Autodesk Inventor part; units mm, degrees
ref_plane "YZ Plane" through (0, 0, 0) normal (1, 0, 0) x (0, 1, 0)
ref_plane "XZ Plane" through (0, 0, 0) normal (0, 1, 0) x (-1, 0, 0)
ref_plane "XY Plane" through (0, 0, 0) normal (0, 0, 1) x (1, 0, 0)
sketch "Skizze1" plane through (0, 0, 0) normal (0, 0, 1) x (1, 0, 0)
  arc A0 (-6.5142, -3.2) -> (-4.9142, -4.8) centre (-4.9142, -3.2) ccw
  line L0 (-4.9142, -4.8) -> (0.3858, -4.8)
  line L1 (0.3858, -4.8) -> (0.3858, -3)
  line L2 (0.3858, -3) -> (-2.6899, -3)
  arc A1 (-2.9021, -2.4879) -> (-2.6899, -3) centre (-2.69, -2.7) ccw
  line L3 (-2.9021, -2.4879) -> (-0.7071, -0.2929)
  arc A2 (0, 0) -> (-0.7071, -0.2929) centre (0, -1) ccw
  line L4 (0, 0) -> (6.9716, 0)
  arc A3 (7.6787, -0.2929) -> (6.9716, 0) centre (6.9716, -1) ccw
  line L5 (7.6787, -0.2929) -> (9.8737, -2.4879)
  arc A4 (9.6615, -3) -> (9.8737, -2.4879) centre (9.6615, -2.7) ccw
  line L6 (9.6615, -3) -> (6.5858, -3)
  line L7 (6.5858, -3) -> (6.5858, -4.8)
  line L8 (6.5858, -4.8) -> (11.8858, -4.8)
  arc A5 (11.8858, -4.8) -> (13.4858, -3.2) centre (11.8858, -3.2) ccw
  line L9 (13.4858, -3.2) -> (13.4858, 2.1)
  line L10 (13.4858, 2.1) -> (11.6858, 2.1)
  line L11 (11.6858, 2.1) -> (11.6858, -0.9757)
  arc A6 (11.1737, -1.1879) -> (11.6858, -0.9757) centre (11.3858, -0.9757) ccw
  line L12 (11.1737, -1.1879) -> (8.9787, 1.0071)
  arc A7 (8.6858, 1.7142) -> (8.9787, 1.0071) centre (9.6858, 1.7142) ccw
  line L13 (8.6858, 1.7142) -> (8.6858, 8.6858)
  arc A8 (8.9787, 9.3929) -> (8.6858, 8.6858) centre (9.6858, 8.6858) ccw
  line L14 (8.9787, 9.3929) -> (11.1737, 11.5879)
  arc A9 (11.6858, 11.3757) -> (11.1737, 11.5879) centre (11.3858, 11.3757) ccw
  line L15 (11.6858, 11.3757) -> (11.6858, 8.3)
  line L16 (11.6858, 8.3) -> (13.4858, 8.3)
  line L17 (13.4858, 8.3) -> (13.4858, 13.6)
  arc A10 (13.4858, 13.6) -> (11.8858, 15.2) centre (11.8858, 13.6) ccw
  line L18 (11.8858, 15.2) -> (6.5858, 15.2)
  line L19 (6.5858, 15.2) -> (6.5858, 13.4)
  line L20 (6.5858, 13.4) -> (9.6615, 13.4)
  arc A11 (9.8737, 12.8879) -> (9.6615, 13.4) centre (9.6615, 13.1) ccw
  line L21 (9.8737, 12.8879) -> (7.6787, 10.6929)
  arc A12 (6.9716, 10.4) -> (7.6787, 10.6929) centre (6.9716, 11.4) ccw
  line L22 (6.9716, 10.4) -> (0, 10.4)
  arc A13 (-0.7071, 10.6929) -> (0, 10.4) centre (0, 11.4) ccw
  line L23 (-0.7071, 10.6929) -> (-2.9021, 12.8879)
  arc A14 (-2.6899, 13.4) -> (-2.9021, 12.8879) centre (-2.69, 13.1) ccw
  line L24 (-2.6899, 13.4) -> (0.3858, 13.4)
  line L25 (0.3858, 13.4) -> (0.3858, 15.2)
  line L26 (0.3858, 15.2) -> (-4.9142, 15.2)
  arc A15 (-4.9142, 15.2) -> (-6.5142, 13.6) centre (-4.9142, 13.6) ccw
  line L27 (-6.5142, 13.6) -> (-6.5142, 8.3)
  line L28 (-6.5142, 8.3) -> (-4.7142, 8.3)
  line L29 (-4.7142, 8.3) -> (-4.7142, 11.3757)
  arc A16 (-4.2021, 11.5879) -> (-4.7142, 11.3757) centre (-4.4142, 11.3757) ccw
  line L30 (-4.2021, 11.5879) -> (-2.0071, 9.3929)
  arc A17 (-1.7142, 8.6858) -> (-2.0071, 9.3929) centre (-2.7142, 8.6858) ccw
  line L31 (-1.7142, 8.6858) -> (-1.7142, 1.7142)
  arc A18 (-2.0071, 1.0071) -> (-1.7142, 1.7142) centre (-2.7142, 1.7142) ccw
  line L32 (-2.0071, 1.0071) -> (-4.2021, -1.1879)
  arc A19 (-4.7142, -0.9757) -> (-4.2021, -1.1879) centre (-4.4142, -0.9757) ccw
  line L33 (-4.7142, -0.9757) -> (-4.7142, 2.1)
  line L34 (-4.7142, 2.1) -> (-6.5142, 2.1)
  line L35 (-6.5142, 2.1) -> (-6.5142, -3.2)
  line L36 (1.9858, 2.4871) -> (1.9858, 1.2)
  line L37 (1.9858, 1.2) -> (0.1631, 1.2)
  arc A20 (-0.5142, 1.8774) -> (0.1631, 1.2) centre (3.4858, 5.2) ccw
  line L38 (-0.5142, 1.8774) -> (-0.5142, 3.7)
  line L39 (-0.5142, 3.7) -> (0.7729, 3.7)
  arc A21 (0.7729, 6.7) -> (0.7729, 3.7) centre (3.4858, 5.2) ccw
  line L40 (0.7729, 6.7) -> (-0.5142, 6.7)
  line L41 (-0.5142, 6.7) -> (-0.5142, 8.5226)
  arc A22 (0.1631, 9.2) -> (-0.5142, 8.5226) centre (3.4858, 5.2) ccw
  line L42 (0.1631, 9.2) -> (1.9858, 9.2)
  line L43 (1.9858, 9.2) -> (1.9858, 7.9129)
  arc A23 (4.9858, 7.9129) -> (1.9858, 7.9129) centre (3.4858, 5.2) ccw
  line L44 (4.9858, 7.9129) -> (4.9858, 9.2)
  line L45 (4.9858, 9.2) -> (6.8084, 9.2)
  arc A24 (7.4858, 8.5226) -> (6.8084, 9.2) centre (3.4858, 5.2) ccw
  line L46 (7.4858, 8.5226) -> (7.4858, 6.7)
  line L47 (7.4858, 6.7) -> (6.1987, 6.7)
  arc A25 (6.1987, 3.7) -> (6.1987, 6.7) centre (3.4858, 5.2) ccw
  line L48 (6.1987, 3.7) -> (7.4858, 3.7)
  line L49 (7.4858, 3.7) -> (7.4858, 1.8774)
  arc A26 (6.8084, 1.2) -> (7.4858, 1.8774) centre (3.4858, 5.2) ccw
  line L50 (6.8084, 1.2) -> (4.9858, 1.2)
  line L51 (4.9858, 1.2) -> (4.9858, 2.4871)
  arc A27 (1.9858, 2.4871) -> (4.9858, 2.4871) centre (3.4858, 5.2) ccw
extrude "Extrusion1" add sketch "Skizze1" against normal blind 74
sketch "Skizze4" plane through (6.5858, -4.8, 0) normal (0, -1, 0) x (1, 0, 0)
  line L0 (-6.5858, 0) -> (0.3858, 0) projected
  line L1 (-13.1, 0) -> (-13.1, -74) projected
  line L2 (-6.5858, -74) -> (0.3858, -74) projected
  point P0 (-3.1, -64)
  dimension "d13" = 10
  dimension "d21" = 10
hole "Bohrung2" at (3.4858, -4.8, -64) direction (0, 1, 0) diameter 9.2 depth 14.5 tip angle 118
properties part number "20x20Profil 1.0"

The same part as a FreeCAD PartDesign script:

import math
import FreeCAD as App
import Part
import Sketcher
from FreeCAD import Vector
Q = App.Units.Quantity

doc = App.newDocument("Part")
body = doc.addObject("PartDesign::Body", "Body")

sketch1 = body.newObject("Sketcher::SketchObject", "Sketch")
sketch1.AttachmentSupport = (doc.getObject("XY_Plane"), [""])
sketch1.MapMode = "FlatFace"
sketch1.addGeometry(Part.LineSegment(Vector(-6.51, 2.1, 0), Vector(-6.51, -3.2, 0)), False)
sketch1.addGeometry(Part.ArcOfCircle(Part.Circle(Vector(-4.91, -3.2, 0), Vector(0, 0, 1), 1.6), math.radians(180), math.radians(270)), False)
sketch1.addGeometry(Part.LineSegment(Vector(-4.91, -4.8, 0), Vector(0.39, -4.8, 0)), False)
sketch1.addGeometry(Part.LineSegment(Vector(0.39, -4.8, 0), Vector(0.39, -3, 0)), False)
sketch1.addGeometry(Part.LineSegment(Vector(0.39, -3, 0), Vector(-2.69, -3, 0)), False)
sketch1.addGeometry(Part.ArcOfCircle(Part.Circle(Vector(-2.69, -2.7, 0), Vector(0, 0, 1), 0.3), math.radians(135), math.radians(270)), False)
sketch1.addGeometry(Part.LineSegment(Vector(-2.9, -2.49, 0), Vector(-0.71, -0.29, 0)), False)
sketch1.addGeometry(Part.ArcOfCircle(Part.Circle(Vector(0, -1, 0), Vector(0, 0, 1), 1), math.radians(90), math.radians(135)), False)
sketch1.addGeometry(Part.LineSegment(Vector(0, 0, 0), Vector(6.97, 0, 0)), False)
sketch1.addGeometry(Part.ArcOfCircle(Part.Circle(Vector(6.97, -1, 0), Vector(0, 0, 1), 1), math.radians(45), math.radians(90)), False)
sketch1.addGeometry(Part.LineSegment(Vector(7.68, -0.29, 0), Vector(9.87, -2.49, 0)), False)
sketch1.addGeometry(Part.ArcOfCircle(Part.Circle(Vector(9.66, -2.7, 0), Vector(0, 0, 1), 0.3), math.radians(-90), math.radians(45)), False)
sketch1.addGeometry(Part.LineSegment(Vector(9.66, -3, 0), Vector(6.59, -3, 0)), False)
sketch1.addGeometry(Part.LineSegment(Vector(6.59, -3, 0), Vector(6.59, -4.8, 0)), False)
sketch1.addGeometry(Part.LineSegment(Vector(6.59, -4.8, 0), Vector(11.89, -4.8, 0)), False)
sketch1.addGeometry(Part.ArcOfCircle(Part.Circle(Vector(11.89, -3.2, 0), Vector(0, 0, 1), 1.6), math.radians(-90), math.radians(0)), False)
sketch1.addGeometry(Part.LineSegment(Vector(13.49, -3.2, 0), Vector(13.49, 2.1, 0)), False)
sketch1.addGeometry(Part.LineSegment(Vector(13.49, 2.1, 0), Vector(11.69, 2.1, 0)), False)
sketch1.addGeometry(Part.LineSegment(Vector(11.69, 2.1, 0), Vector(11.69, -0.98, 0)), False)
sketch1.addGeometry(Part.ArcOfCircle(Part.Circle(Vector(11.39, -0.98, 0), Vector(0, 0, 1), 0.3), math.radians(-135), math.radians(0)), False)
sketch1.addGeometry(Part.LineSegment(Vector(11.17, -1.19, 0), Vector(8.98, 1.01, 0)), False)
sketch1.addGeometry(Part.ArcOfCircle(Part.Circle(Vector(9.69, 1.71, 0), Vector(0, 0, 1), 1), math.radians(180), math.radians(225)), False)
sketch1.addGeometry(Part.LineSegment(Vector(8.69, 1.71, 0), Vector(8.69, 8.69, 0)), False)
sketch1.addGeometry(Part.ArcOfCircle(Part.Circle(Vector(9.69, 8.69, 0), Vector(0, 0, 1), 1), math.radians(135), math.radians(180)), False)
sketch1.addGeometry(Part.LineSegment(Vector(8.98, 9.39, 0), Vector(11.17, 11.59, 0)), False)
sketch1.addGeometry(Part.ArcOfCircle(Part.Circle(Vector(11.39, 11.38, 0), Vector(0, 0, 1), 0.3), math.radians(0), math.radians(135)), False)
sketch1.addGeometry(Part.LineSegment(Vector(11.69, 11.38, 0), Vector(11.69, 8.3, 0)), False)
sketch1.addGeometry(Part.LineSegment(Vector(11.69, 8.3, 0), Vector(13.49, 8.3, 0)), False)
sketch1.addGeometry(Part.LineSegment(Vector(13.49, 8.3, 0), Vector(13.49, 13.6, 0)), False)
sketch1.addGeometry(Part.ArcOfCircle(Part.Circle(Vector(11.89, 13.6, 0), Vector(0, 0, 1), 1.6), math.radians(0), math.radians(90)), False)
sketch1.addGeometry(Part.LineSegment(Vector(11.89, 15.2, 0), Vector(6.59, 15.2, 0)), False)
sketch1.addGeometry(Part.LineSegment(Vector(6.59, 15.2, 0), Vector(6.59, 13.4, 0)), False)
sketch1.addGeometry(Part.LineSegment(Vector(6.59, 13.4, 0), Vector(9.66, 13.4, 0)), False)
sketch1.addGeometry(Part.ArcOfCircle(Part.Circle(Vector(9.66, 13.1, 0), Vector(0, 0, 1), 0.3), math.radians(-45), math.radians(90)), False)
sketch1.addGeometry(Part.LineSegment(Vector(9.87, 12.89, 0), Vector(7.68, 10.69, 0)), False)
sketch1.addGeometry(Part.ArcOfCircle(Part.Circle(Vector(6.97, 11.4, 0), Vector(0, 0, 1), 1), math.radians(-90), math.radians(-45)), False)
sketch1.addGeometry(Part.LineSegment(Vector(6.97, 10.4, 0), Vector(0, 10.4, 0)), False)
sketch1.addGeometry(Part.ArcOfCircle(Part.Circle(Vector(0, 11.4, 0), Vector(0, 0, 1), 1), math.radians(-135), math.radians(-90)), False)
sketch1.addGeometry(Part.LineSegment(Vector(-0.71, 10.69, 0), Vector(-2.9, 12.89, 0)), False)
sketch1.addGeometry(Part.ArcOfCircle(Part.Circle(Vector(-2.69, 13.1, 0), Vector(0, 0, 1), 0.3), math.radians(90), math.radians(225)), False)
sketch1.addGeometry(Part.LineSegment(Vector(-2.69, 13.4, 0), Vector(0.39, 13.4, 0)), False)
sketch1.addGeometry(Part.LineSegment(Vector(0.39, 13.4, 0), Vector(0.39, 15.2, 0)), False)
sketch1.addGeometry(Part.LineSegment(Vector(0.39, 15.2, 0), Vector(-4.91, 15.2, 0)), False)
sketch1.addGeometry(Part.ArcOfCircle(Part.Circle(Vector(-4.91, 13.6, 0), Vector(0, 0, 1), 1.6), math.radians(90), math.radians(180)), False)
sketch1.addGeometry(Part.LineSegment(Vector(-6.51, 13.6, 0), Vector(-6.51, 8.3, 0)), False)
sketch1.addGeometry(Part.LineSegment(Vector(-6.51, 8.3, 0), Vector(-4.71, 8.3, 0)), False)
sketch1.addGeometry(Part.LineSegment(Vector(-4.71, 8.3, 0), Vector(-4.71, 11.38, 0)), False)
sketch1.addGeometry(Part.ArcOfCircle(Part.Circle(Vector(-4.41, 11.38, 0), Vector(0, 0, 1), 0.3), math.radians(45), math.radians(180)), False)
sketch1.addGeometry(Part.LineSegment(Vector(-4.2, 11.59, 0), Vector(-2.01, 9.39, 0)), False)
sketch1.addGeometry(Part.ArcOfCircle(Part.Circle(Vector(-2.71, 8.69, 0), Vector(0, 0, 1), 1), math.radians(0), math.radians(45)), False)
sketch1.addGeometry(Part.LineSegment(Vector(-1.71, 8.69, 0), Vector(-1.71, 1.71, 0)), False)
sketch1.addGeometry(Part.ArcOfCircle(Part.Circle(Vector(-2.71, 1.71, 0), Vector(0, 0, 1), 1), math.radians(-45), math.radians(0)), False)
sketch1.addGeometry(Part.LineSegment(Vector(-2.01, 1.01, 0), Vector(-4.2, -1.19, 0)), False)
sketch1.addGeometry(Part.ArcOfCircle(Part.Circle(Vector(-4.41, -0.98, 0), Vector(0, 0, 1), 0.3), math.radians(180), math.radians(315)), False)
sketch1.addGeometry(Part.LineSegment(Vector(-4.71, -0.98, 0), Vector(-4.71, 2.1, 0)), False)
sketch1.addGeometry(Part.LineSegment(Vector(-4.71, 2.1, 0), Vector(-6.51, 2.1, 0)), False)
sketch1.addGeometry(Part.ArcOfCircle(Part.Circle(Vector(3.49, 5.2, 0), Vector(0, 0, 1), 3.1), math.radians(-119), math.radians(-61)), False)
sketch1.addGeometry(Part.LineSegment(Vector(1.99, 2.49, 0), Vector(1.99, 1.2, 0)), False)
sketch1.addGeometry(Part.LineSegment(Vector(1.99, 1.2, 0), Vector(0.16, 1.2, 0)), False)
sketch1.addGeometry(Part.ArcOfCircle(Part.Circle(Vector(3.49, 5.21, 0), Vector(0, 0, 1), 5.21), math.radians(-140.28), math.radians(-129.73)), False)
sketch1.addGeometry(Part.LineSegment(Vector(-0.51, 1.88, 0), Vector(-0.51, 3.7, 0)), False)
sketch1.addGeometry(Part.LineSegment(Vector(-0.51, 3.7, 0), Vector(0.77, 3.7, 0)), False)
sketch1.addGeometry(Part.ArcOfCircle(Part.Circle(Vector(3.49, 5.2, 0), Vector(0, 0, 1), 3.1), math.radians(151), math.radians(209)), False)
sketch1.addGeometry(Part.LineSegment(Vector(0.77, 6.7, 0), Vector(-0.51, 6.7, 0)), False)
sketch1.addGeometry(Part.LineSegment(Vector(-0.51, 6.7, 0), Vector(-0.51, 8.52, 0)), False)
sketch1.addGeometry(Part.ArcOfCircle(Part.Circle(Vector(3.48, 5.21, 0), Vector(0, 0, 1), 5.19), math.radians(129.71), math.radians(140.3)), False)
sketch1.addGeometry(Part.LineSegment(Vector(0.16, 9.2, 0), Vector(1.99, 9.2, 0)), False)
sketch1.addGeometry(Part.LineSegment(Vector(1.99, 9.2, 0), Vector(1.99, 7.91, 0)), False)
sketch1.addGeometry(Part.ArcOfCircle(Part.Circle(Vector(3.49, 5.2, 0), Vector(0, 0, 1), 3.1), math.radians(61), math.radians(119)), False)
sketch1.addGeometry(Part.LineSegment(Vector(4.99, 7.91, 0), Vector(4.99, 9.2, 0)), False)
sketch1.addGeometry(Part.LineSegment(Vector(4.99, 9.2, 0), Vector(6.81, 9.2, 0)), False)
sketch1.addGeometry(Part.ArcOfCircle(Part.Circle(Vector(3.49, 5.2, 0), Vector(0, 0, 1), 5.2), math.radians(39.71), math.radians(50.29)), False)
sketch1.addGeometry(Part.LineSegment(Vector(7.49, 8.52, 0), Vector(7.49, 6.7, 0)), False)
sketch1.addGeometry(Part.LineSegment(Vector(7.49, 6.7, 0), Vector(6.2, 6.7, 0)), False)
sketch1.addGeometry(Part.ArcOfCircle(Part.Circle(Vector(3.49, 5.2, 0), Vector(0, 0, 1), 3.1), math.radians(-29), math.radians(29)), False)
sketch1.addGeometry(Part.LineSegment(Vector(6.2, 3.7, 0), Vector(7.49, 3.7, 0)), False)
sketch1.addGeometry(Part.LineSegment(Vector(7.49, 3.7, 0), Vector(7.49, 1.88, 0)), False)
sketch1.addGeometry(Part.ArcOfCircle(Part.Circle(Vector(3.49, 5.2, 0), Vector(0, 0, 1), 5.2), math.radians(-50.29), math.radians(-39.71)), False)
sketch1.addGeometry(Part.LineSegment(Vector(6.81, 1.2, 0), Vector(4.99, 1.2, 0)), False)
sketch1.addGeometry(Part.LineSegment(Vector(4.99, 1.2, 0), Vector(4.99, 2.49, 0)), False)
sketch1.addConstraint(Sketcher.Constraint("Tangent", 0, 2, 1, 1))
sketch1.addConstraint(Sketcher.Constraint("Tangent", 1, 2, 2, 1))
sketch1.addConstraint(Sketcher.Constraint("Coincident", 2, 2, 3, 1))
sketch1.addConstraint(Sketcher.Constraint("Coincident", 3, 2, 4, 1))
sketch1.addConstraint(Sketcher.Constraint("Tangent", 4, 2, 5, 2))
sketch1.addConstraint(Sketcher.Constraint("Tangent", 5, 1, 6, 1))
sketch1.addConstraint(Sketcher.Constraint("Tangent", 6, 2, 7, 2))
sketch1.addConstraint(Sketcher.Constraint("Tangent", 7, 1, 8, 1))
sketch1.addConstraint(Sketcher.Constraint("Tangent", 8, 2, 9, 2))
sketch1.addConstraint(Sketcher.Constraint("Tangent", 9, 1, 10, 1))
sketch1.addConstraint(Sketcher.Constraint("Tangent", 10, 2, 11, 2))
sketch1.addConstraint(Sketcher.Constraint("Tangent", 11, 1, 12, 1))
sketch1.addConstraint(Sketcher.Constraint("Coincident", 12, 2, 13, 1))
sketch1.addConstraint(Sketcher.Constraint("Coincident", 13, 2, 14, 1))
sketch1.addConstraint(Sketcher.Constraint("Tangent", 14, 2, 15, 1))
sketch1.addConstraint(Sketcher.Constraint("Tangent", 15, 2, 16, 1))
sketch1.addConstraint(Sketcher.Constraint("Coincident", 16, 2, 17, 1))
sketch1.addConstraint(Sketcher.Constraint("Coincident", 17, 2, 18, 1))
sketch1.addConstraint(Sketcher.Constraint("Tangent", 18, 2, 19, 2))
sketch1.addConstraint(Sketcher.Constraint("Tangent", 19, 1, 20, 1))
sketch1.addConstraint(Sketcher.Constraint("Tangent", 20, 2, 21, 2))
sketch1.addConstraint(Sketcher.Constraint("Tangent", 21, 1, 22, 1))
sketch1.addConstraint(Sketcher.Constraint("Tangent", 22, 2, 23, 2))
sketch1.addConstraint(Sketcher.Constraint("Tangent", 23, 1, 24, 1))
sketch1.addConstraint(Sketcher.Constraint("Tangent", 24, 2, 25, 2))
sketch1.addConstraint(Sketcher.Constraint("Tangent", 25, 1, 26, 1))
sketch1.addConstraint(Sketcher.Constraint("Coincident", 26, 2, 27, 1))
sketch1.addConstraint(Sketcher.Constraint("Coincident", 27, 2, 28, 1))
sketch1.addConstraint(Sketcher.Constraint("Tangent", 28, 2, 29, 1))
sketch1.addConstraint(Sketcher.Constraint("Tangent", 29, 2, 30, 1))
sketch1.addConstraint(Sketcher.Constraint("Coincident", 30, 2, 31, 1))
sketch1.addConstraint(Sketcher.Constraint("Coincident", 31, 2, 32, 1))
sketch1.addConstraint(Sketcher.Constraint("Tangent", 32, 2, 33, 2))
sketch1.addConstraint(Sketcher.Constraint("Tangent", 33, 1, 34, 1))
sketch1.addConstraint(Sketcher.Constraint("Tangent", 34, 2, 35, 2))
sketch1.addConstraint(Sketcher.Constraint("Tangent", 35, 1, 36, 1))
sketch1.addConstraint(Sketcher.Constraint("Tangent", 36, 2, 37, 2))
sketch1.addConstraint(Sketcher.Constraint("Tangent", 37, 1, 38, 1))
sketch1.addConstraint(Sketcher.Constraint("Tangent", 38, 2, 39, 2))
sketch1.addConstraint(Sketcher.Constraint("Tangent", 39, 1, 40, 1))
sketch1.addConstraint(Sketcher.Constraint("Coincident", 40, 2, 41, 1))
sketch1.addConstraint(Sketcher.Constraint("Coincident", 41, 2, 42, 1))
sketch1.addConstraint(Sketcher.Constraint("Tangent", 42, 2, 43, 1))
sketch1.addConstraint(Sketcher.Constraint("Tangent", 43, 2, 44, 1))
sketch1.addConstraint(Sketcher.Constraint("Coincident", 44, 2, 45, 1))
sketch1.addConstraint(Sketcher.Constraint("Coincident", 45, 2, 46, 1))
sketch1.addConstraint(Sketcher.Constraint("Tangent", 46, 2, 47, 2))
sketch1.addConstraint(Sketcher.Constraint("Tangent", 47, 1, 48, 1))
sketch1.addConstraint(Sketcher.Constraint("Tangent", 48, 2, 49, 2))
sketch1.addConstraint(Sketcher.Constraint("Tangent", 49, 1, 50, 1))
sketch1.addConstraint(Sketcher.Constraint("Tangent", 50, 2, 51, 2))
sketch1.addConstraint(Sketcher.Constraint("Tangent", 51, 1, 52, 1))
sketch1.addConstraint(Sketcher.Constraint("Tangent", 52, 2, 53, 2))
sketch1.addConstraint(Sketcher.Constraint("Tangent", 53, 1, 54, 1))
sketch1.addConstraint(Sketcher.Constraint("Coincident", 54, 2, 55, 1))
sketch1.addConstraint(Sketcher.Constraint("Coincident", 55, 2, 0, 1))
sketch1.addConstraint(Sketcher.Constraint("Coincident", 56, 1, 57, 1))
sketch1.addConstraint(Sketcher.Constraint("Coincident", 57, 2, 58, 1))
sketch1.addConstraint(Sketcher.Constraint("Coincident", 58, 2, 59, 2))
sketch1.addConstraint(Sketcher.Constraint("Coincident", 59, 1, 60, 1))
sketch1.addConstraint(Sketcher.Constraint("Coincident", 60, 2, 61, 1))
sketch1.addConstraint(Sketcher.Constraint("Coincident", 61, 2, 62, 2))
sketch1.addConstraint(Sketcher.Constraint("Coincident", 62, 1, 63, 1))
sketch1.addConstraint(Sketcher.Constraint("Coincident", 63, 2, 64, 1))
sketch1.addConstraint(Sketcher.Constraint("Coincident", 64, 2, 65, 2))
sketch1.addConstraint(Sketcher.Constraint("Coincident", 65, 1, 66, 1))
sketch1.addConstraint(Sketcher.Constraint("Coincident", 66, 2, 67, 1))
sketch1.addConstraint(Sketcher.Constraint("Coincident", 67, 2, 68, 2))
sketch1.addConstraint(Sketcher.Constraint("Coincident", 68, 1, 69, 1))
sketch1.addConstraint(Sketcher.Constraint("Coincident", 69, 2, 70, 1))
sketch1.addConstraint(Sketcher.Constraint("Coincident", 70, 2, 71, 2))
sketch1.addConstraint(Sketcher.Constraint("Coincident", 71, 1, 72, 1))
sketch1.addConstraint(Sketcher.Constraint("Coincident", 72, 2, 73, 1))
sketch1.addConstraint(Sketcher.Constraint("Coincident", 73, 2, 74, 2))
sketch1.addConstraint(Sketcher.Constraint("Coincident", 74, 1, 75, 1))
sketch1.addConstraint(Sketcher.Constraint("Coincident", 75, 2, 76, 1))
sketch1.addConstraint(Sketcher.Constraint("Coincident", 76, 2, 77, 2))
sketch1.addConstraint(Sketcher.Constraint("Coincident", 77, 1, 78, 1))
sketch1.addConstraint(Sketcher.Constraint("Coincident", 78, 2, 79, 1))
sketch1.addConstraint(Sketcher.Constraint("Coincident", 79, 2, 56, 2))
sketch1.addConstraint(Sketcher.Constraint("Vertical", 0))
sketch1.addConstraint(Sketcher.Constraint("Horizontal", 2))
sketch1.addConstraint(Sketcher.Constraint("Vertical", 3))
sketch1.addConstraint(Sketcher.Constraint("Horizontal", 4))
sketch1.addConstraint(Sketcher.Constraint("Horizontal", 8))
sketch1.addConstraint(Sketcher.Constraint("Horizontal", 12))
sketch1.addConstraint(Sketcher.Constraint("Vertical", 13))
sketch1.addConstraint(Sketcher.Constraint("Horizontal", 14))
sketch1.addConstraint(Sketcher.Constraint("Vertical", 16))
sketch1.addConstraint(Sketcher.Constraint("Horizontal", 17))
sketch1.addConstraint(Sketcher.Constraint("Vertical", 18))
sketch1.addConstraint(Sketcher.Constraint("Vertical", 22))
sketch1.addConstraint(Sketcher.Constraint("Vertical", 26))
sketch1.addConstraint(Sketcher.Constraint("Horizontal", 27))
sketch1.addConstraint(Sketcher.Constraint("Vertical", 28))
sketch1.addConstraint(Sketcher.Constraint("Horizontal", 30))
sketch1.addConstraint(Sketcher.Constraint("Vertical", 31))
sketch1.addConstraint(Sketcher.Constraint("Horizontal", 32))
sketch1.addConstraint(Sketcher.Constraint("Horizontal", 36))
sketch1.addConstraint(Sketcher.Constraint("Horizontal", 40))
sketch1.addConstraint(Sketcher.Constraint("Vertical", 41))
sketch1.addConstraint(Sketcher.Constraint("Horizontal", 42))
sketch1.addConstraint(Sketcher.Constraint("Vertical", 44))
sketch1.addConstraint(Sketcher.Constraint("Horizontal", 45))
sketch1.addConstraint(Sketcher.Constraint("Vertical", 46))
sketch1.addConstraint(Sketcher.Constraint("Vertical", 50))
sketch1.addConstraint(Sketcher.Constraint("Vertical", 54))
sketch1.addConstraint(Sketcher.Constraint("Horizontal", 55))
sketch1.addConstraint(Sketcher.Constraint("Vertical", 57))
sketch1.addConstraint(Sketcher.Constraint("Horizontal", 58))
sketch1.addConstraint(Sketcher.Constraint("Vertical", 60))
sketch1.addConstraint(Sketcher.Constraint("Horizontal", 61))
sketch1.addConstraint(Sketcher.Constraint("Horizontal", 63))
sketch1.addConstraint(Sketcher.Constraint("Vertical", 64))
sketch1.addConstraint(Sketcher.Constraint("Horizontal", 66))
sketch1.addConstraint(Sketcher.Constraint("Vertical", 67))
sketch1.addConstraint(Sketcher.Constraint("Vertical", 69))
sketch1.addConstraint(Sketcher.Constraint("Horizontal", 70))
sketch1.addConstraint(Sketcher.Constraint("Vertical", 72))
sketch1.addConstraint(Sketcher.Constraint("Horizontal", 73))
sketch1.addConstraint(Sketcher.Constraint("Horizontal", 75))
sketch1.addConstraint(Sketcher.Constraint("Vertical", 76))
sketch1.addConstraint(Sketcher.Constraint("Horizontal", 78))
sketch1.addConstraint(Sketcher.Constraint("Vertical", 79))
sketch1.addConstraint(Sketcher.Constraint("Coincident", 7, 1, -1, 1))
sketch1.addConstraint(Sketcher.Constraint("Coincident", 62, 3, 56, 3))
sketch1.addConstraint(Sketcher.Constraint("Coincident", 68, 3, 56, 3))
sketch1.addConstraint(Sketcher.Constraint("Coincident", 71, 3, 56, 3))
sketch1.addConstraint(Sketcher.Constraint("Coincident", 74, 3, 56, 3))
sketch1.addConstraint(Sketcher.Constraint("Coincident", 77, 3, 56, 3))
sketch1.addConstraint(Sketcher.Constraint("Equal", 7, 9))
sketch1.addConstraint(Sketcher.Constraint("Equal", 5, 11))
sketch1.addConstraint(Sketcher.Constraint("Equal", 1, 15))
sketch1.addConstraint(Sketcher.Constraint("Equal", 11, 19))
sketch1.addConstraint(Sketcher.Constraint("Equal", 9, 21))
sketch1.addConstraint(Sketcher.Constraint("Equal", 21, 23))
sketch1.addConstraint(Sketcher.Constraint("Equal", 19, 25))
sketch1.addConstraint(Sketcher.Constraint("Equal", 15, 29))
sketch1.addConstraint(Sketcher.Constraint("Equal", 25, 33))
sketch1.addConstraint(Sketcher.Constraint("Equal", 23, 35))
sketch1.addConstraint(Sketcher.Constraint("Equal", 35, 37))
sketch1.addConstraint(Sketcher.Constraint("Equal", 33, 39))
sketch1.addConstraint(Sketcher.Constraint("Equal", 29, 43))
sketch1.addConstraint(Sketcher.Constraint("Equal", 39, 47))
sketch1.addConstraint(Sketcher.Constraint("Equal", 37, 49))
sketch1.addConstraint(Sketcher.Constraint("Equal", 49, 51))
sketch1.addConstraint(Sketcher.Constraint("Equal", 47, 53))
sketch1.addConstraint(Sketcher.Constraint("Equal", 56, 62))
sketch1.addConstraint(Sketcher.Constraint("Equal", 62, 68))
sketch1.addConstraint(Sketcher.Constraint("Equal", 68, 74))
sketch1.addConstraint(Sketcher.Constraint("Equal", 71, 77))
sketch1.addConstraint(Sketcher.Constraint("PointOnObject", 37, 3, -2))
sketch1.addConstraint(Sketcher.Constraint("Perpendicular", 6, 10))
sketch1.addConstraint(Sketcher.Constraint("Parallel", 10, 20))
sketch1.addConstraint(Sketcher.Constraint("Perpendicular", 20, 24))
sketch1.addConstraint(Sketcher.Constraint("Parallel", 24, 34))
sketch1.addConstraint(Sketcher.Constraint("Perpendicular", 34, 38))
sketch1.addConstraint(Sketcher.Constraint("Parallel", 38, 48))
sketch1.addConstraint(Sketcher.Constraint("Perpendicular", 48, 52))
sketch1.addConstraint(Sketcher.Constraint("Horizontal", 5, 3, 11, 3))
sketch1.addConstraint(Sketcher.Constraint("Horizontal", 1, 3, 15, 3))
sketch1.addConstraint(Sketcher.Constraint("Horizontal", 33, 3, 39, 3))
sketch1.addConstraint(Sketcher.Constraint("Horizontal", 29, 3, 43, 3))
sketch1.addConstraint(Sketcher.Constraint("Horizontal", 25, 3, 47, 3))
sketch1.addConstraint(Sketcher.Constraint("Horizontal", 23, 3, 49, 3))
sketch1.addConstraint(Sketcher.Constraint("Horizontal", 21, 3, 51, 3))
sketch1.addConstraint(Sketcher.Constraint("Horizontal", 19, 3, 53, 3))
sketch1.addConstraint(Sketcher.Constraint("Horizontal", 6, 2, 9, 1))
sketch1.addConstraint(Sketcher.Constraint("Horizontal", 27, 2, 44, 2))
sketch1.addConstraint(Sketcher.Constraint("Horizontal", 17, 2, 54, 2))
sketch1.addConstraint(Sketcher.Constraint("Horizontal", 67, 2, 68, 1))
sketch1.addConstraint(Sketcher.Constraint("Horizontal", 66, 2, 69, 2))
sketch1.addConstraint(Sketcher.Constraint("Horizontal", 64, 2, 71, 1))
sketch1.addConstraint(Sketcher.Constraint("Horizontal", 63, 2, 72, 2))
sketch1.addConstraint(Sketcher.Constraint("Horizontal", 61, 2, 74, 1))
sketch1.addConstraint(Sketcher.Constraint("Horizontal", 59, 1, 76, 2))
sketch1.addConstraint(Sketcher.Constraint("Horizontal", 58, 2, 77, 1))
sketch1.addConstraint(Sketcher.Constraint("Horizontal", 56, 1, 79, 2))
sketch1.addConstraint(Sketcher.Constraint("Vertical", 19, 3, 25, 3))
sketch1.addConstraint(Sketcher.Constraint("Vertical", 15, 3, 29, 3))
sketch1.addConstraint(Sketcher.Constraint("Vertical", 11, 3, 33, 3))
sketch1.addConstraint(Sketcher.Constraint("Vertical", 9, 3, 35, 3))
sketch1.addConstraint(Sketcher.Constraint("Vertical", 1, 3, 43, 3))
sketch1.addConstraint(Sketcher.Constraint("Vertical", 13, 2, 30, 2))
sketch1.addConstraint(Sketcher.Constraint("Vertical", 3, 2, 40, 2))
sketch1.addConstraint(Sketcher.Constraint("Vertical", 61, 2, 62, 1))
sketch1.addConstraint(Sketcher.Constraint("Vertical", 60, 2, 63, 2))
sketch1.addConstraint(Sketcher.Constraint("Vertical", 58, 2, 65, 1))
sketch1.addConstraint(Sketcher.Constraint("Vertical", 57, 2, 66, 2))
sketch1.addConstraint(Sketcher.Constraint("Vertical", 72, 2, 75, 2))
sketch1.addConstraint(Sketcher.Constraint("Vertical", 70, 2, 77, 1))
sketch1.addConstraint(Sketcher.Constraint("Equal", 4, 12))
sketch1.addConstraint(Sketcher.Constraint("Equal", 2, 14))
sketch1.addConstraint(Sketcher.Constraint("Equal", 27, 45))
sketch1.addConstraint(Sketcher.Constraint("Equal", 66, 70))
sketch1.addConstraint(Sketcher.Constraint("Equal", 63, 73))
sketch1.addConstraint(Sketcher.Constraint("Equal", 42, 0))
sketch1.addConstraint(Sketcher.Constraint("Equal", 55, 3))
sketch1.addConstraint(Sketcher.Constraint("Equal", 40, 18))
sketch1.addConstraint(Sketcher.Constraint("Equal", 36, 22))
sketch1.addConstraint(Sketcher.Constraint("Equal", 18, 26))
sketch1.addConstraint(Sketcher.Constraint("Equal", 16, 28))
sketch1.addConstraint(Sketcher.Constraint("Equal", 13, 31))
sketch1.addConstraint(Sketcher.Constraint("Equal", 75, 57))
sketch1.addConstraint(Sketcher.Constraint("Equal", 78, 60))
sketch1.addConstraint(Sketcher.Constraint("Equal", 10, 20))
sketch1.addConstraint(Sketcher.Constraint("Radius", 7, Q("1 mm")))
sketch1.addConstraint(Sketcher.Constraint("Radius", 1, Q("1.6 mm")))
sketch1.addConstraint(Sketcher.Constraint("Radius", 5, Q("0.3 mm")))
sketch1.addConstraint(Sketcher.Constraint("Radius", 56, Q("3.1 mm")))
sketch1.addConstraint(Sketcher.Constraint("Radius", 71, Q("5.2 mm")))
sketch1.addConstraint(Sketcher.Constraint("DistanceX", 2, 1, 2, 2, Q("5.3 mm")))
sketch1.addConstraint(Sketcher.Constraint("DistanceX", 17, 2, 17, 1, Q("1.8 mm")))
sketch1.addConstraint(Sketcher.Constraint("DistanceY", 3, 2, -1, 1, Q("3 mm")))
sketch1.addConstraint(Sketcher.Constraint("DistanceY", -1, 1, 29, 3, Q("13.6 mm")))
sketch1.addConstraint(Sketcher.Constraint("DistanceY", -1, 1, 56, 3, Q("5.2 mm")))
sketch1.addConstraint(Sketcher.Constraint("DistanceY", -1, 1, 57, 2, Q("1.2 mm")))
sketch1.addConstraint(Sketcher.Constraint("DistanceY", -1, 1, 60, 2, Q("3.7 mm")))
sketch1.addConstraint(Sketcher.Constraint("Radius", 59, Q("5.2075 mm")))
sketch1.addConstraint(Sketcher.Constraint("Radius", 65, Q("5.1925 mm")))
sketch1.addConstraint(Sketcher.Constraint("DistanceX", 4, 2, 4, 1, Q("3.0757 mm")))
sketch1.addConstraint(Sketcher.Constraint("DistanceX", -1, 1, 58, 2, Q("0.163 mm")))
pad1 = body.newObject("PartDesign::Pad", "Pad")
pad1.Profile = sketch1
pad1.Length = 74
pad1.Reversed = True

sketch2 = body.newObject("Sketcher::SketchObject", "Sketch001")
sketch2.AttachmentSupport = (doc.getObject("XZ_Plane"), [""])
sketch2.MapMode = "FlatFace"
sketch2.AttachmentOffset = App.Placement(Vector(0, 0, 4.8), App.Rotation())
sketch2.addGeometry(Part.Circle(Vector(3.5, -64, 0), Vector(0, 0, 1), 4.6), False)
sketch2.addConstraint(Sketcher.Constraint("Diameter", 0, Q("9.2 mm")))
sketch2.addConstraint(Sketcher.Constraint("DistanceY", 0, 3, -1, 1, Q("64 mm")))
sketch2.addConstraint(Sketcher.Constraint("DistanceX", -1, 1, 0, 3, Q("3.4858 mm")))
doc.recompute()
hole = body.newObject("PartDesign::Hole", "Hole")
hole.Profile = sketch2
hole.ThreadType = "None"
hole.Diameter = 9.2
hole.DepthType = "Dimension"
hole.Depth = 14.5
hole.DrillPoint = "Angled"
hole.DrillPointAngle = 118

doc.recompute()
